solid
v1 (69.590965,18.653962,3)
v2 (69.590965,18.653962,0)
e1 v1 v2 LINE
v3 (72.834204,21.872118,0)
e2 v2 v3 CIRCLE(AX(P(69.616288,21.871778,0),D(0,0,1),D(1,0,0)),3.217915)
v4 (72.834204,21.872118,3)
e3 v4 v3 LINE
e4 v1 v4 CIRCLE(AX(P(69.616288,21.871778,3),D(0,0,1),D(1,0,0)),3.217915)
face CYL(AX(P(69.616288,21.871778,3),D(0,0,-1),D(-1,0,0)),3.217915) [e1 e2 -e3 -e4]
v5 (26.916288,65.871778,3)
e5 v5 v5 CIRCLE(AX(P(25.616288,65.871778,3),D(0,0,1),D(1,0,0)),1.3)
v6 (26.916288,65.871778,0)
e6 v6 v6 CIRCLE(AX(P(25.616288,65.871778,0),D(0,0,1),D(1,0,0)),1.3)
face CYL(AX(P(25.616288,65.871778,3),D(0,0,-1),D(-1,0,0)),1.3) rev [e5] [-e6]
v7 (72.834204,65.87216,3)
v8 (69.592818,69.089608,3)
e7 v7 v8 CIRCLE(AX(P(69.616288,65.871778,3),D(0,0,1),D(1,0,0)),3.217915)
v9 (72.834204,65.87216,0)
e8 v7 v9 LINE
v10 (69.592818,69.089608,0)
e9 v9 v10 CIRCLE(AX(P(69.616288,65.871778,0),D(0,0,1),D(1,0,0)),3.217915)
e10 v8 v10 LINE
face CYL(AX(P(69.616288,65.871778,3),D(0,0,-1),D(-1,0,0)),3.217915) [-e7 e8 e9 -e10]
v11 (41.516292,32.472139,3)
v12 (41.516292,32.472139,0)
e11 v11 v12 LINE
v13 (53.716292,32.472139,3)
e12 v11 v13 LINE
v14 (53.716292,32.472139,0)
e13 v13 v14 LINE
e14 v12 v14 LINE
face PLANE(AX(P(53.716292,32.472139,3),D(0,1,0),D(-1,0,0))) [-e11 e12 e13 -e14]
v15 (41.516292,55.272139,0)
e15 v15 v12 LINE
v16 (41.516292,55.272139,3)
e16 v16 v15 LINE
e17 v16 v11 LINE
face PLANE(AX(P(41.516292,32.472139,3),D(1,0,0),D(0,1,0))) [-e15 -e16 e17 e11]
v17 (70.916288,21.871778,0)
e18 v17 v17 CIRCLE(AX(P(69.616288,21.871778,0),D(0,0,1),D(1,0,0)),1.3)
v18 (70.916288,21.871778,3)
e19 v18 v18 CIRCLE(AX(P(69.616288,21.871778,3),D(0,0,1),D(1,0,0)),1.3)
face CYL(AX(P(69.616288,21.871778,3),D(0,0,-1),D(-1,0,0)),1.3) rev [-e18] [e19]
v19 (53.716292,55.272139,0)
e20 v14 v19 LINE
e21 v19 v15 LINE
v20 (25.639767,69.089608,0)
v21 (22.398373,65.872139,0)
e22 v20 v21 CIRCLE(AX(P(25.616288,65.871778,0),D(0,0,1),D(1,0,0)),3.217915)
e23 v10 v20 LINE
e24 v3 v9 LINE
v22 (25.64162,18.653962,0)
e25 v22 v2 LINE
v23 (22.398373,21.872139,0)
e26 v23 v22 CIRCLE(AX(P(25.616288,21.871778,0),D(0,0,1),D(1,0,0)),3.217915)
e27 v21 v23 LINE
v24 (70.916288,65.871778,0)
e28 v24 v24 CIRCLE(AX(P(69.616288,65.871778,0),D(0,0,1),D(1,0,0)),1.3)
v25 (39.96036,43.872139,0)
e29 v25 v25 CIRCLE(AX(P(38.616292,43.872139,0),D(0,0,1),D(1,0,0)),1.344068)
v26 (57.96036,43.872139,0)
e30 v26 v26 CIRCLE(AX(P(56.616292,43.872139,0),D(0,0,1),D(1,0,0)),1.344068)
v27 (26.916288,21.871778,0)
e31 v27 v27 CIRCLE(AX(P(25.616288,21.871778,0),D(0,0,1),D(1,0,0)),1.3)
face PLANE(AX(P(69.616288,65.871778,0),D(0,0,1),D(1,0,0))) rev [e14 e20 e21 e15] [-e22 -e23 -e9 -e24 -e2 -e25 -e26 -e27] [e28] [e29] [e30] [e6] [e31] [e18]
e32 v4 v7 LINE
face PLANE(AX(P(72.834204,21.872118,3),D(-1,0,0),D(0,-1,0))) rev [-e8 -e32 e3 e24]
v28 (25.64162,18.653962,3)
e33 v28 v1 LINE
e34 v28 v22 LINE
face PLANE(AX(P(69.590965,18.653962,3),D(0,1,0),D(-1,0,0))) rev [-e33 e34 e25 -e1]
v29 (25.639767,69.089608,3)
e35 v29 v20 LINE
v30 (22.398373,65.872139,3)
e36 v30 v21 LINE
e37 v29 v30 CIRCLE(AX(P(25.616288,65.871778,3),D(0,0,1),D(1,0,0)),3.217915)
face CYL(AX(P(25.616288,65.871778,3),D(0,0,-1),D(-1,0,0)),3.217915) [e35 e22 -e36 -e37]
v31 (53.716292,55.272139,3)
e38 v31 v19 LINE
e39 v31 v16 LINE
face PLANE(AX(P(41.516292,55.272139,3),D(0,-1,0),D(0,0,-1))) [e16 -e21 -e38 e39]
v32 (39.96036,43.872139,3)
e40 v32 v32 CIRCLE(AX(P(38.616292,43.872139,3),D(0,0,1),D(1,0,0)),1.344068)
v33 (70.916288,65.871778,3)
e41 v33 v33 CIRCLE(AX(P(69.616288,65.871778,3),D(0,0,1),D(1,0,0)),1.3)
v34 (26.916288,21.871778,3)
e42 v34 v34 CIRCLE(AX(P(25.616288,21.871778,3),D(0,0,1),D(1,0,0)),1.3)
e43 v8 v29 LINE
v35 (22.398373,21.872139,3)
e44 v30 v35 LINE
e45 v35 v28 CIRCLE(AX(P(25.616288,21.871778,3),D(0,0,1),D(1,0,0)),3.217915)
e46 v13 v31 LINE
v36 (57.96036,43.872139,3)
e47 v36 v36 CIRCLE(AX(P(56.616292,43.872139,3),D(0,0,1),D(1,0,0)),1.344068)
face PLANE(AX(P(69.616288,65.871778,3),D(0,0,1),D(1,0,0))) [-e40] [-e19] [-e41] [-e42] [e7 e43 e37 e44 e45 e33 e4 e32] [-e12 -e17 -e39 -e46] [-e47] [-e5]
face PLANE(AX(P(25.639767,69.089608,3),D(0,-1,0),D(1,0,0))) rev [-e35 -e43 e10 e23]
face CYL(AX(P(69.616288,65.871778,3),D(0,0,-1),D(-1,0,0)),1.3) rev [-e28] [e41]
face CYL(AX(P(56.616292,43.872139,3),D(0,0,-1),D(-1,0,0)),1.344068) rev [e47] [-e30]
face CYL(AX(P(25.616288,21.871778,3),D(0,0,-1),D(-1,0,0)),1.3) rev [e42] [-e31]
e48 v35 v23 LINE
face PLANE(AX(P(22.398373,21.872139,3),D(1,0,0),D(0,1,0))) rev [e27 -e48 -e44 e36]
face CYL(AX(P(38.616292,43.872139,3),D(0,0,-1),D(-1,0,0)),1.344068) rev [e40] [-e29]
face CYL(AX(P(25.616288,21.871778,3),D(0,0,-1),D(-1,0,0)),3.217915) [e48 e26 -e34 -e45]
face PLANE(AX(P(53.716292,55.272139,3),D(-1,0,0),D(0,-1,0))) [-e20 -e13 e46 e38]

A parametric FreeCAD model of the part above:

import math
import FreeCAD as App
import Part
import Sketcher
Q = App.Units.Quantity


def add_polygon(sketch, points):
    """Adds a closed chain of lines whose ends are joined by coincident constraints."""
    first, n = sketch.GeometryCount, len(points)
    for a, b in zip(points, points[1:] + points[:1]):
        sketch.addGeometry(Part.LineSegment(App.Vector(*a, 0), App.Vector(*b, 0)), False)
    for i in range(n):
        sketch.addConstraint(Sketcher.Constraint("Coincident", first + i, 2, first + (i + 1) % n, 1))

doc = App.newDocument("Part")
body = doc.addObject("PartDesign::Body", "Body")

# Sketch on XY plane
sketch1 = body.newObject("Sketcher::SketchObject", "Sketch")
sketch1.AttachmentSupport = (doc.getObject("XY_Plane"), [""])
sketch1.MapMode = "FlatFace"
sketch1.addGeometry(Part.LineSegment(App.Vector(69.592818, 69.089608, 0), App.Vector(25.639767, 69.089608, 0)), False)  # 0
sketch1.addGeometry(Part.ArcOfCircle(Part.Circle(App.Vector(25.616288, 65.871778, 0), App.Vector(0, 0, 1), 3.217915), math.radians(89.581954), math.radians(179.993573)), False)  # 1
sketch1.addGeometry(Part.LineSegment(App.Vector(22.398373, 65.872139, 0), App.Vector(22.398373, 21.872139, 0)), False)  # 2
sketch1.addGeometry(Part.ArcOfCircle(Part.Circle(App.Vector(25.616288, 21.871778, 0), App.Vector(0, 0, 1), 3.217915), math.radians(179.993573), math.radians(270.451039)), False)  # 3
sketch1.addGeometry(Part.LineSegment(App.Vector(25.64162, 18.653962, 0), App.Vector(69.590965, 18.653962, 0)), False)  # 4
sketch1.addGeometry(Part.ArcOfCircle(Part.Circle(App.Vector(69.616288, 21.871778, 0), App.Vector(0, 0, 1), 3.217915), math.radians(-90.450895), math.radians(0.006057)), False)  # 5
sketch1.addGeometry(Part.LineSegment(App.Vector(72.834204, 21.872118, 0), App.Vector(72.834204, 65.87216, 0)), False)  # 6
sketch1.addGeometry(Part.ArcOfCircle(Part.Circle(App.Vector(69.616288, 65.871778, 0), App.Vector(0, 0, 1), 3.217915), math.radians(0.006798), math.radians(90.417902)), False)  # 7
sketch1.addGeometry(Part.Circle(App.Vector(69.616288, 21.871778, 0), App.Vector(0, 0, 1), 1.3), False)  # 8
sketch1.addGeometry(Part.Circle(App.Vector(25.616288, 21.871778, 0), App.Vector(0, 0, 1), 1.3), False)  # 9
sketch1.addGeometry(Part.Circle(App.Vector(56.616292, 43.872139, 0), App.Vector(0, 0, 1), 1.344068), False)  # 10
add_polygon(sketch1, [(41.516292, 32.472139), (41.516292, 55.272139), (53.716292, 55.272139), (53.716292, 32.472139)])  # lines 11-14
sketch1.addGeometry(Part.Circle(App.Vector(69.616288, 65.871778, 0), App.Vector(0, 0, 1), 1.3), False)  # 15
sketch1.addGeometry(Part.Circle(App.Vector(38.616292, 43.872139, 0), App.Vector(0, 0, 1), 1.344068), False)  # 16
sketch1.addGeometry(Part.Circle(App.Vector(25.616288, 65.871778, 0), App.Vector(0, 0, 1), 1.3), False)  # 17
sketch1.addConstraint(Sketcher.Constraint("Coincident", 0, 2, 1, 1))
sketch1.addConstraint(Sketcher.Constraint("Coincident", 1, 2, 2, 1))
sketch1.addConstraint(Sketcher.Constraint("Coincident", 2, 2, 3, 1))
sketch1.addConstraint(Sketcher.Constraint("Coincident", 3, 2, 4, 1))
sketch1.addConstraint(Sketcher.Constraint("Coincident", 4, 2, 5, 1))
sketch1.addConstraint(Sketcher.Constraint("Coincident", 5, 2, 6, 1))
sketch1.addConstraint(Sketcher.Constraint("Coincident", 6, 2, 7, 1))
sketch1.addConstraint(Sketcher.Constraint("Coincident", 7, 2, 0, 1))
sketch1.addConstraint(Sketcher.Constraint("Horizontal", 0))
sketch1.addConstraint(Sketcher.Constraint("Vertical", 2))
sketch1.addConstraint(Sketcher.Constraint("Horizontal", 4))
sketch1.addConstraint(Sketcher.Constraint("Vertical", 6))
sketch1.addConstraint(Sketcher.Constraint("Vertical", 11))
sketch1.addConstraint(Sketcher.Constraint("Horizontal", 12))
sketch1.addConstraint(Sketcher.Constraint("Vertical", 13))
sketch1.addConstraint(Sketcher.Constraint("Horizontal", 14))
sketch1.addConstraint(Sketcher.Constraint("Coincident", 8, 3, 5, 3))
sketch1.addConstraint(Sketcher.Constraint("Coincident", 9, 3, 3, 3))
sketch1.addConstraint(Sketcher.Constraint("Coincident", 15, 3, 7, 3))
sketch1.addConstraint(Sketcher.Constraint("Coincident", 17, 3, 1, 3))
sketch1.addConstraint(Sketcher.Constraint("Equal", 1, 3))
sketch1.addConstraint(Sketcher.Constraint("Equal", 3, 5))
sketch1.addConstraint(Sketcher.Constraint("Equal", 5, 7))
sketch1.addConstraint(Sketcher.Constraint("Equal", 8, 9))
sketch1.addConstraint(Sketcher.Constraint("Equal", 9, 15))
sketch1.addConstraint(Sketcher.Constraint("Equal", 10, 16))
sketch1.addConstraint(Sketcher.Constraint("Equal", 15, 17))
sketch1.addConstraint(Sketcher.Constraint("Horizontal", 3, 3, 5, 3))
sketch1.addConstraint(Sketcher.Constraint("Horizontal", 1, 3, 7, 3))
sketch1.addConstraint(Sketcher.Constraint("Horizontal", 10, 3, 16, 3))
sketch1.addConstraint(Sketcher.Constraint("Diameter", 8, Q("2.6 mm")))
sketch1.addConstraint(Sketcher.Constraint("DistanceY", 2, 2, 2, 1, Q("44 mm")))
sketch1.addConstraint(Sketcher.Constraint("DistanceX", 12, 1, 12, 2, Q("12.2 mm")))
sketch1.addConstraint(Sketcher.Constraint("DistanceY", 11, 1, 11, 2, Q("22.8 mm")))
sketch1.addConstraint(Sketcher.Constraint("DistanceY", 3, 3, 1, 3, Q("44 mm")))
sketch1.addConstraint(Sketcher.Constraint("DistanceX", 3, 3, 5, 3, Q("44 mm")))
sketch1.addConstraint(Sketcher.Constraint("DistanceX", 16, 3, 10, 3, Q("18 mm")))
sketch1.addConstraint(Sketcher.Constraint("DistanceY", 16, 3, 1, 2, Q("22 mm")))
sketch1.addConstraint(Sketcher.Constraint("DistanceX", 16, 3, 11, 2, Q("2.9 mm")))
sketch1.addConstraint(Sketcher.Constraint("DistanceY", 16, 3, 11, 2, Q("11.4 mm")))
sketch1.addConstraint(Sketcher.Constraint("Diameter", 10, Q("2.688136 mm")))
sketch1.addConstraint(Sketcher.Constraint("Radius", 1, Q("3.217915 mm")))
sketch1.addConstraint(Sketcher.Constraint("DistanceX", 0, 2, 0, 1, Q("43.953051 mm")))
sketch1.addConstraint(Sketcher.Constraint("DistanceY", 6, 1, 6, 2, Q("44.000042 mm")))
sketch1.addConstraint(Sketcher.Constraint("DistanceX", 4, 1, 4, 2, Q("43.949345 mm")))
sketch1.addConstraint(Sketcher.Constraint("DistanceX", -1, 1, 1, 3, Q("25.616288 mm")))
sketch1.addConstraint(Sketcher.Constraint("DistanceY", -1, 1, 10, 3, Q("43.872139 mm")))
sketch1.addConstraint(Sketcher.Constraint("DistanceY", -1, 1, 5, 2, Q("21.872118 mm")))
sketch1.addConstraint(Sketcher.Constraint("DistanceY", 10, 3, 7, 3, Q("21.999639 mm")))
sketch1.addConstraint(Sketcher.Constraint("DistanceX", 1, 2, 16, 3, Q("16.217919 mm")))
pad1 = body.newObject("PartDesign::Pad", "Pad")
pad1.Profile = sketch1
pad1.Length = 3

doc.recompute()
